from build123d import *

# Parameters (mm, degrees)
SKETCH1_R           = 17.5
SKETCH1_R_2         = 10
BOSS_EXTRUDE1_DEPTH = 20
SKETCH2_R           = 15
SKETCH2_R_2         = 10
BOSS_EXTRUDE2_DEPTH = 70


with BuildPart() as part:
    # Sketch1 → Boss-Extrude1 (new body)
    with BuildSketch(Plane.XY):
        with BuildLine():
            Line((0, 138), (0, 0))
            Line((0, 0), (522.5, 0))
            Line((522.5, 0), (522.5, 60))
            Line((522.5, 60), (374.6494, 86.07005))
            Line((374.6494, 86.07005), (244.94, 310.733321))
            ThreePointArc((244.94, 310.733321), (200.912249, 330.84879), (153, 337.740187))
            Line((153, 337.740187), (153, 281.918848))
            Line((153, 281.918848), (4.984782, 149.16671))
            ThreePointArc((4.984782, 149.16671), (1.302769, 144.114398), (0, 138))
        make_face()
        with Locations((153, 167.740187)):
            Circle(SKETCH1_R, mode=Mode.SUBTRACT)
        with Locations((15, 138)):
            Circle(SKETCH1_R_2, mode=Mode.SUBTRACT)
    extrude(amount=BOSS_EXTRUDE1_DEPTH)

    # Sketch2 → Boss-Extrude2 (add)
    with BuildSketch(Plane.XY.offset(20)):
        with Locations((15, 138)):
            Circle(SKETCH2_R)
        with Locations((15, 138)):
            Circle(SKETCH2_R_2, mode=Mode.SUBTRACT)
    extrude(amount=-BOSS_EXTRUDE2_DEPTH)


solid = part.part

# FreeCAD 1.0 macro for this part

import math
import FreeCAD as App
import Part
import Sketcher

V = App.Vector
Q = App.Units.Quantity

doc = App.newDocument("Part")
params = doc.addObject("Spreadsheet::Sheet", "Params")
for row, (alias, value) in enumerate([
    ("sketch1_diameter", "20 mm"),
    ("sketch1_diameter2", "35 mm"),
    ("sketch1_radius", "170.000001 mm"),
    ("sketch1_radius2", "15.000001 mm"),
    ("sketch1_height", "138 mm"),
    ("pad1_length", "20 mm"),
    ("sketch2_diameter", "30 mm"),
    ("sketch2_diameter2", "20 mm"),
    ("pad2_length", "70 mm"),
], start=1):
    params.set(f"A{row}", alias)
    params.set(f"B{row}", "=" + value)
    params.setAlias(f"B{row}", alias)

body = doc.addObject("PartDesign::Body", "Body")

sketch1 = doc.addObject("Sketcher::SketchObject", "Sketch")
body.addObject(sketch1)
sketch1.AttachmentSupport = (doc.XY_Plane, [""])
sketch1.MapMode = "FlatFace"
sketch1.addGeometry([
    Part.LineSegment(V(0, 138, 0), V(0, 0, 0)),
    Part.LineSegment(V(0, 0, 0), V(522, 0, 0)),
    Part.LineSegment(V(522, 0, 0), V(522, 60, 0)),
    Part.LineSegment(V(522, 60, 0), V(375, 86, 0)),
    Part.LineSegment(V(375, 86, 0), V(245, 311, 0)),
    Part.ArcOfCircle(Part.Circle(V(153, 168, 0), V(0, 0, 1), 170), math.radians(57), math.radians(90)),
    Part.LineSegment(V(153, 338, 0), V(153, 282, 0)),
    Part.LineSegment(V(153, 282, 0), V(5, 149, 0)),
    Part.ArcOfCircle(Part.Circle(V(15, 138, 0), V(0, 0, 1), 15), math.radians(132), math.radians(180)),
    Part.Circle(V(15, 138, 0), V(0, 0, 1), 10),
    Part.Circle(V(153, 168, 0), V(0, 0, 1), 18),
], False)
sketch1.addConstraint([
    Sketcher.Constraint("Coincident", 0, 2, 1, 1),
    Sketcher.Constraint("Coincident", 1, 2, 2, 1),
    Sketcher.Constraint("Coincident", 2, 2, 3, 1),
    Sketcher.Constraint("Coincident", 3, 2, 4, 1),
    Sketcher.Constraint("Coincident", 4, 2, 5, 1),
    Sketcher.Constraint("Coincident", 5, 2, 6, 1),
    Sketcher.Constraint("Coincident", 6, 2, 7, 1),
    Sketcher.Constraint("Tangent", 7, 2, 8, 1),
    Sketcher.Constraint("Tangent", 8, 2, 0, 1),
    Sketcher.Constraint("Vertical", 0),
    Sketcher.Constraint("Horizontal", 1),
    Sketcher.Constraint("Vertical", 2),
    Sketcher.Constraint("Vertical", 6),
    Sketcher.Constraint("Coincident", 0, 2, -1, 1),
    Sketcher.Constraint("Coincident", 9, 3, 8, 3),
    Sketcher.Constraint("Coincident", 10, 3, 5, 3),
    Sketcher.Constraint("Vertical", 10, 3, 5, 2),
    Sketcher.Constraint("Diameter", 9, 20.0),
    Sketcher.Constraint("Diameter", 10, 35.0),
    Sketcher.Constraint("Radius", 5, 170.000001),
    Sketcher.Constraint("Radius", 8, 15.000001),
    Sketcher.Constraint("DistanceY", 0, 2, 0, 1, 138.0),
    Sketcher.Constraint("DistanceY", 2, 1, 2, 2, 60.0),
    Sketcher.Constraint("Angle", 3, Q("170 deg")),
    Sketcher.Constraint("Angle", 4, Q("120 deg")),
    Sketcher.Constraint("DistanceX", 1, 1, 1, 2, 522.5),
    Sketcher.Constraint("DistanceX", -1, 1, 5, 3, 153.0),
    Sketcher.Constraint("DistanceX", -1, 1, 4, 2, 244.94),
    Sketcher.Constraint("Distance", 4, 259.4188),
    Sketcher.Constraint("DistanceY", 6, 2, 6, 1, 55.821339),
])
sketch1.setExpression("Constraints[17]", "Params.sketch1_diameter")
sketch1.setExpression("Constraints[18]", "Params.sketch1_diameter2")
sketch1.setExpression("Constraints[19]", "Params.sketch1_radius")
sketch1.setExpression("Constraints[20]", "Params.sketch1_radius2")
sketch1.setExpression("Constraints[21]", "Params.sketch1_height")
pad1 = doc.addObject("PartDesign::Pad", "Pad")
body.addObject(pad1)
pad1.Profile = sketch1
pad1.setExpression("Length", "Params.pad1_length")

sketch2 = doc.addObject("Sketcher::SketchObject", "Sketch001")
body.addObject(sketch2)
sketch2.AttachmentSupport = (doc.XY_Plane, [""])
sketch2.MapMode = "FlatFace"
sketch2.AttachmentOffset = App.Placement(V(0, 0, 20), App.Rotation())
sketch2.addGeometry([
    Part.Circle(V(15, 138, 0), V(0, 0, 1), 15),
    Part.Circle(V(15, 138, 0), V(0, 0, 1), 10),
], False)
sketch2.addConstraint([
    Sketcher.Constraint("Coincident", 1, 3, 0, 3),
    Sketcher.Constraint("Diameter", 0, 30.0),
    Sketcher.Constraint("Diameter", 1, 20.0),
    Sketcher.Constraint("DistanceX", -1, 1, 0, 3, 15.0),
    Sketcher.Constraint("DistanceY", -1, 1, 0, 3, 138.0),
])
sketch2.setExpression("Constraints[1]", "Params.sketch2_diameter")
sketch2.setExpression("Constraints[2]", "Params.sketch2_diameter2")
pad2 = doc.addObject("PartDesign::Pad", "Pad001")
body.addObject(pad2)
pad2.Profile = sketch2
pad2.setExpression("Length", "Params.pad2_length")
pad2.Reversed = True

doc.recompute()
